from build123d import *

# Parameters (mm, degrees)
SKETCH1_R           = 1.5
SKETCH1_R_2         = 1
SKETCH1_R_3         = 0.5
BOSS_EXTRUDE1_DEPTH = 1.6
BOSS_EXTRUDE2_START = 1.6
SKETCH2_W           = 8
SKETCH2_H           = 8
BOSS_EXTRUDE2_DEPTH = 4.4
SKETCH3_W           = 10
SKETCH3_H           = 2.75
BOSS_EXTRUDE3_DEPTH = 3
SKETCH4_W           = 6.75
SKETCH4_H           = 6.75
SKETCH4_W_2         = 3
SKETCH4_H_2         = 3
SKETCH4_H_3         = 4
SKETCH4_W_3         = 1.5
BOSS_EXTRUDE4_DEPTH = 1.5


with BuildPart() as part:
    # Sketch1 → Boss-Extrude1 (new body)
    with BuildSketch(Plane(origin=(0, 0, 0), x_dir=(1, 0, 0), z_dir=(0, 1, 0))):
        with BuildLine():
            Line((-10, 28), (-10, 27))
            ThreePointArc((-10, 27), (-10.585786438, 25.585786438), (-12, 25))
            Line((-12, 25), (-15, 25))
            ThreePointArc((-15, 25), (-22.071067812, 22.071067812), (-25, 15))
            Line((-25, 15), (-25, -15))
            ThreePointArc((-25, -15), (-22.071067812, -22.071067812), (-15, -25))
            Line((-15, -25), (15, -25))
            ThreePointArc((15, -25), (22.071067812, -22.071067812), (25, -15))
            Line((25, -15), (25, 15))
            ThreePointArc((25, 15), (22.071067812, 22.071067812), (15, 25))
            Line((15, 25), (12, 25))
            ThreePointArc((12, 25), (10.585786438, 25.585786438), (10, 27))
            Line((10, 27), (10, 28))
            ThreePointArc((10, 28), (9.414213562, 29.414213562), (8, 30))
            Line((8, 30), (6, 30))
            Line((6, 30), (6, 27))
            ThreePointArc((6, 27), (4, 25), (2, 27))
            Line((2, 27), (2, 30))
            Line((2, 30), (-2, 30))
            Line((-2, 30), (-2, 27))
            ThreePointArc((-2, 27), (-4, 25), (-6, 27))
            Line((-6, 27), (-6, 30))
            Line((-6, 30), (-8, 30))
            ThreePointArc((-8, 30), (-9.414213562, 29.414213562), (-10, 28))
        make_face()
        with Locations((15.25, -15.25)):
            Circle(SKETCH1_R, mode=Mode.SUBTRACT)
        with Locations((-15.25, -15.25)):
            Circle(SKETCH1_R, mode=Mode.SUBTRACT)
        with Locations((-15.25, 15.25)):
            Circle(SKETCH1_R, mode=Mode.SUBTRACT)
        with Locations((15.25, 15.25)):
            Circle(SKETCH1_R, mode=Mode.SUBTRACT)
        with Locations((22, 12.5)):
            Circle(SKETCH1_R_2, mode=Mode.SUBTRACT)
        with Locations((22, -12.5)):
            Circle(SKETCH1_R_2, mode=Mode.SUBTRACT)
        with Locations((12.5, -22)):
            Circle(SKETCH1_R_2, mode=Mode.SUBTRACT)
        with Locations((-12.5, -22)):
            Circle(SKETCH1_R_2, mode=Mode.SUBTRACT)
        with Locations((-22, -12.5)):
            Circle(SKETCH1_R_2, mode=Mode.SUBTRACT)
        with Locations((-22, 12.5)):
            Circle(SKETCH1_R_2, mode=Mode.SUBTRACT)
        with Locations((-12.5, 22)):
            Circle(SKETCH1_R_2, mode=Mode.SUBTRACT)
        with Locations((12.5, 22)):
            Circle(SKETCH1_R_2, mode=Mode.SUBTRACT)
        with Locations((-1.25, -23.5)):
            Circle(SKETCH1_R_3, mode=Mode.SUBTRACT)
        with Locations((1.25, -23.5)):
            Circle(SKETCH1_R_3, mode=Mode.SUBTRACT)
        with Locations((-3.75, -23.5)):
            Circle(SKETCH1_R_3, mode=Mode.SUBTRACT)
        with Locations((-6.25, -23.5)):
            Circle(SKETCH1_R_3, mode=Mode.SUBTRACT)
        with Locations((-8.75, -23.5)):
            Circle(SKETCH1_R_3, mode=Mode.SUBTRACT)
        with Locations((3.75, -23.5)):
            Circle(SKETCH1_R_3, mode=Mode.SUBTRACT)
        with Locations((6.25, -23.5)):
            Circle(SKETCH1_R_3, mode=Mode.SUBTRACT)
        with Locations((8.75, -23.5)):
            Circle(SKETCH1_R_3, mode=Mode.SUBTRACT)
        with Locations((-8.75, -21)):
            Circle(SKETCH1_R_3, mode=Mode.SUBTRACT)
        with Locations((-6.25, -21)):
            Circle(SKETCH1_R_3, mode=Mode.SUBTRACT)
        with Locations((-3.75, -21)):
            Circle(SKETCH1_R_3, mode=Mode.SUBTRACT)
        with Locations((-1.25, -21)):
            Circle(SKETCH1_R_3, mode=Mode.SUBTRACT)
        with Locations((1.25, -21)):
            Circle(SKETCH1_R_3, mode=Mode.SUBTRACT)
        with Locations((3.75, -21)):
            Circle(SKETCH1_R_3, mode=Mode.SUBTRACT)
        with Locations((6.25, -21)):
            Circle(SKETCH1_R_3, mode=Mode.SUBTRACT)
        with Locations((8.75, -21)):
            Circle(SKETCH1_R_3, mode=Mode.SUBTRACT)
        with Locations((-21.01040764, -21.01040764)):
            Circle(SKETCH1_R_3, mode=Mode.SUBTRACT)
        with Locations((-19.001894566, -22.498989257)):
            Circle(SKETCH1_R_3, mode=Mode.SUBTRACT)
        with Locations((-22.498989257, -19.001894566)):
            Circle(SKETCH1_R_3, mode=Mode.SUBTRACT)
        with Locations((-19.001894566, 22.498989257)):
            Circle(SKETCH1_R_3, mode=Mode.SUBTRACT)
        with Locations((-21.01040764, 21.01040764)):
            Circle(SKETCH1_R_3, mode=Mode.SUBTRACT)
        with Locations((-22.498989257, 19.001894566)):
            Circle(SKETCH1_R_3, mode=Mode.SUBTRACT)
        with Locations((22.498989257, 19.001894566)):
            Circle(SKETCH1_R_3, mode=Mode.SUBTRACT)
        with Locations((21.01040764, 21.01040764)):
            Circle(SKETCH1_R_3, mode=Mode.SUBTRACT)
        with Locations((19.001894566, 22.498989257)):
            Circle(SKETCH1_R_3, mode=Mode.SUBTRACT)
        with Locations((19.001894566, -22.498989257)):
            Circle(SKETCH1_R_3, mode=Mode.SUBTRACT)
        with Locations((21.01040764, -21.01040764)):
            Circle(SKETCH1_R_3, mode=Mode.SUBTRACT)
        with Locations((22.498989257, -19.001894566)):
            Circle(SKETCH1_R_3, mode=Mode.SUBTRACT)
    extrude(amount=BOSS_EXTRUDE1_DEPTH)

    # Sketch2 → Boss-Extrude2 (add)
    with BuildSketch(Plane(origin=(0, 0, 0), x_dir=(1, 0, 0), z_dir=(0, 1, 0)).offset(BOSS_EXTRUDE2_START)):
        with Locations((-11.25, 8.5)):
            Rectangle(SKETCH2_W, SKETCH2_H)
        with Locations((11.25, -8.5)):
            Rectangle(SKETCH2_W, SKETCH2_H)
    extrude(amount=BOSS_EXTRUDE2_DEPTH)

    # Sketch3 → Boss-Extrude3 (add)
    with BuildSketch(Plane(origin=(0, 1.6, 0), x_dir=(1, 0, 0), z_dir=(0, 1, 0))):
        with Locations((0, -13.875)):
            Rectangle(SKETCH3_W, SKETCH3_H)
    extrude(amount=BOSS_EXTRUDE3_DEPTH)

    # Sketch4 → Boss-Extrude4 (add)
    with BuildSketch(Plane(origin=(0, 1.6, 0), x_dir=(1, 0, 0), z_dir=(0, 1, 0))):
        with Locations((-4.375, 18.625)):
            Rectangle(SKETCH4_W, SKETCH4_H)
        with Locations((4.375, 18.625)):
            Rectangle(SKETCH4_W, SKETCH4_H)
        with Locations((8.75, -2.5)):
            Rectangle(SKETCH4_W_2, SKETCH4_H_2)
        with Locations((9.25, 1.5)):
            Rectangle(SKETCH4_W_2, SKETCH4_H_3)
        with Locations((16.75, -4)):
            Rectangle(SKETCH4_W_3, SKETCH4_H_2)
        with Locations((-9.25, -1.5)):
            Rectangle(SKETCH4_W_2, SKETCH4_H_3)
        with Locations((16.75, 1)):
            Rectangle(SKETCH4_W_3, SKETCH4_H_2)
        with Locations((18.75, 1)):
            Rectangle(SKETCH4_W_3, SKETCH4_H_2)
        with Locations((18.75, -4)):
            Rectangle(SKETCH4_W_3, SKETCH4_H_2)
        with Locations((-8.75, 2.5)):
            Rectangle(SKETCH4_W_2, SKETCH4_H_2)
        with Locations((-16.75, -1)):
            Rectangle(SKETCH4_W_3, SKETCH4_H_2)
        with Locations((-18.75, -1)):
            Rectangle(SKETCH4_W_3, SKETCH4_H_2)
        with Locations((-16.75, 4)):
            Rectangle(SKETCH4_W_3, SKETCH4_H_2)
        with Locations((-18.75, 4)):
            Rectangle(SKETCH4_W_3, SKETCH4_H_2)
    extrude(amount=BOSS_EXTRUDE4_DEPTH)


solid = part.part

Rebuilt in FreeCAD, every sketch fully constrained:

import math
import FreeCAD as App
import Part
import Sketcher
from FreeCAD import Vector
Q = App.Units.Quantity

doc = App.newDocument("Part")
body = doc.addObject("PartDesign::Body", "Body")

# Sketch on XZ plane
sketch1 = body.newObject("Sketcher::SketchObject", "Sketch")
sketch1.AttachmentSupport = (doc.getObject("XZ_Plane"), [""])
sketch1.MapMode = "FlatFace"
sketch1.addGeometry(Part.LineSegment(Vector(-10, -28, 0), Vector(-10, -27, 0)), False)
sketch1.addGeometry(Part.ArcOfCircle(Part.Circle(Vector(-12, -27, 0), Vector(0, 0, 1), 2), math.radians(0), math.radians(90)), False)
sketch1.addGeometry(Part.LineSegment(Vector(-12, -25, 0), Vector(-15, -25, 0)), False)
sketch1.addGeometry(Part.ArcOfCircle(Part.Circle(Vector(-15, -15, 0), Vector(0, 0, 1), 10), math.radians(180), math.radians(270)), False)
sketch1.addGeometry(Part.LineSegment(Vector(-25, -15, 0), Vector(-25, 15, 0)), False)
sketch1.addGeometry(Part.ArcOfCircle(Part.Circle(Vector(-15, 15, 0), Vector(0, 0, 1), 10), math.radians(90), math.radians(180)), False)
sketch1.addGeometry(Part.LineSegment(Vector(-15, 25, 0), Vector(15, 25, 0)), False)
sketch1.addGeometry(Part.ArcOfCircle(Part.Circle(Vector(15, 15, 0), Vector(0, 0, 1), 10), math.radians(0), math.radians(90)), False)
sketch1.addGeometry(Part.LineSegment(Vector(25, 15, 0), Vector(25, -15, 0)), False)
sketch1.addGeometry(Part.ArcOfCircle(Part.Circle(Vector(15, -15, 0), Vector(0, 0, 1), 10), math.radians(-90), math.radians(0)), False)
sketch1.addGeometry(Part.LineSegment(Vector(15, -25, 0), Vector(12, -25, 0)), False)
sketch1.addGeometry(Part.ArcOfCircle(Part.Circle(Vector(12, -27, 0), Vector(0, 0, 1), 2), math.radians(90), math.radians(180)), False)
sketch1.addGeometry(Part.LineSegment(Vector(10, -27, 0), Vector(10, -28, 0)), False)
sketch1.addGeometry(Part.ArcOfCircle(Part.Circle(Vector(8, -28, 0), Vector(0, 0, 1), 2), math.radians(-90), math.radians(0)), False)
sketch1.addGeometry(Part.LineSegment(Vector(8, -30, 0), Vector(6, -30, 0)), False)
sketch1.addGeometry(Part.LineSegment(Vector(6, -30, 0), Vector(6, -27, 0)), False)
sketch1.addGeometry(Part.ArcOfCircle(Part.Circle(Vector(4, -27, 0), Vector(0, 0, 1), 2), math.radians(0), math.radians(180)), False)
sketch1.addGeometry(Part.LineSegment(Vector(2, -27, 0), Vector(2, -30, 0)), False)
sketch1.addGeometry(Part.LineSegment(Vector(2, -30, 0), Vector(-2, -30, 0)), False)
sketch1.addGeometry(Part.LineSegment(Vector(-2, -30, 0), Vector(-2, -27, 0)), False)
sketch1.addGeometry(Part.ArcOfCircle(Part.Circle(Vector(-4, -27, 0), Vector(0, 0, 1), 2), math.radians(0), math.radians(180)), False)
sketch1.addGeometry(Part.LineSegment(Vector(-6, -27, 0), Vector(-6, -30, 0)), False)
sketch1.addGeometry(Part.LineSegment(Vector(-6, -30, 0), Vector(-8, -30, 0)), False)
sketch1.addGeometry(Part.ArcOfCircle(Part.Circle(Vector(-8, -28, 0), Vector(0, 0, 1), 2), math.radians(-180), math.radians(-90)), False)
sketch1.addGeometry(Part.Circle(Vector(-19.001895, 22.498989, 0), Vector(0, 0, 1), 0.5), False)
sketch1.addGeometry(Part.Circle(Vector(-21.010408, 21.010408, 0), Vector(0, 0, 1), 0.5), False)
sketch1.addGeometry(Part.Circle(Vector(-22.498989, 19.001895, 0), Vector(0, 0, 1), 0.5), False)
sketch1.addGeometry(Part.Circle(Vector(-12.5, 22, 0), Vector(0, 0, 1), 1), False)
sketch1.addGeometry(Part.Circle(Vector(-22, 12.5, 0), Vector(0, 0, 1), 1), False)
sketch1.addGeometry(Part.Circle(Vector(-15.25, 15.25, 0), Vector(0, 0, 1), 1.5), False)
sketch1.addGeometry(Part.Circle(Vector(-8.75, 23.5, 0), Vector(0, 0, 1), 0.5), False)
sketch1.addGeometry(Part.Circle(Vector(-6.25, 23.5, 0), Vector(0, 0, 1), 0.5), False)
sketch1.addGeometry(Part.Circle(Vector(-8.75, 21, 0), Vector(0, 0, 1), 0.5), False)
sketch1.addGeometry(Part.Circle(Vector(-6.25, 21, 0), Vector(0, 0, 1), 0.5), False)
sketch1.addGeometry(Part.Circle(Vector(-3.75, 23.5, 0), Vector(0, 0, 1), 0.5), False)
sketch1.addGeometry(Part.Circle(Vector(-1.25, 23.5, 0), Vector(0, 0, 1), 0.5), False)
sketch1.addGeometry(Part.Circle(Vector(-3.75, 21, 0), Vector(0, 0, 1), 0.5), False)
sketch1.addGeometry(Part.Circle(Vector(-1.25, 21, 0), Vector(0, 0, 1), 0.5), False)
sketch1.addGeometry(Part.Circle(Vector(1.25, 23.5, 0), Vector(0, 0, 1), 0.5), False)
sketch1.addGeometry(Part.Circle(Vector(3.75, 23.5, 0), Vector(0, 0, 1), 0.5), False)
sketch1.addGeometry(Part.Circle(Vector(1.25, 21, 0), Vector(0, 0, 1), 0.5), False)
sketch1.addGeometry(Part.Circle(Vector(3.75, 21, 0), Vector(0, 0, 1), 0.5), False)
sketch1.addGeometry(Part.Circle(Vector(6.25, 23.5, 0), Vector(0, 0, 1), 0.5), False)
sketch1.addGeometry(Part.Circle(Vector(8.75, 23.5, 0), Vector(0, 0, 1), 0.5), False)
sketch1.addGeometry(Part.Circle(Vector(6.25, 21, 0), Vector(0, 0, 1), 0.5), False)
sketch1.addGeometry(Part.Circle(Vector(8.75, 21, 0), Vector(0, 0, 1), 0.5), False)
sketch1.addGeometry(Part.Circle(Vector(12.5, 22, 0), Vector(0, 0, 1), 1), False)
sketch1.addGeometry(Part.Circle(Vector(19.001895, 22.498989, 0), Vector(0, 0, 1), 0.5), False)
sketch1.addGeometry(Part.Circle(Vector(21.010408, 21.010408, 0), Vector(0, 0, 1), 0.5), False)
sketch1.addGeometry(Part.Circle(Vector(22.498989, 19.001895, 0), Vector(0, 0, 1), 0.5), False)
sketch1.addGeometry(Part.Circle(Vector(15.25, 15.25, 0), Vector(0, 0, 1), 1.5), False)
sketch1.addGeometry(Part.Circle(Vector(22, 12.5, 0), Vector(0, 0, 1), 1), False)
sketch1.addGeometry(Part.Circle(Vector(-22, -12.5, 0), Vector(0, 0, 1), 1), False)
sketch1.addGeometry(Part.Circle(Vector(-15.25, -15.25, 0), Vector(0, 0, 1), 1.5), False)
sketch1.addGeometry(Part.Circle(Vector(-22.498989, -19.001895, 0), Vector(0, 0, 1), 0.5), False)
sketch1.addGeometry(Part.Circle(Vector(-21.010408, -21.010408, 0), Vector(0, 0, 1), 0.5), False)
sketch1.addGeometry(Part.Circle(Vector(-19.001895, -22.498989, 0), Vector(0, 0, 1), 0.5), False)
sketch1.addGeometry(Part.Circle(Vector(-12.5, -22, 0), Vector(0, 0, 1), 1), False)
sketch1.addGeometry(Part.Circle(Vector(15.25, -15.25, 0), Vector(0, 0, 1), 1.5), False)
sketch1.addGeometry(Part.Circle(Vector(22, -12.5, 0), Vector(0, 0, 1), 1), False)
sketch1.addGeometry(Part.Circle(Vector(12.5, -22, 0), Vector(0, 0, 1), 1), False)
sketch1.addGeometry(Part.Circle(Vector(22.498989, -19.001895, 0), Vector(0, 0, 1), 0.5), False)
sketch1.addGeometry(Part.Circle(Vector(19.001895, -22.498989, 0), Vector(0, 0, 1), 0.5), False)
sketch1.addGeometry(Part.Circle(Vector(21.010408, -21.010408, 0), Vector(0, 0, 1), 0.5), False)
sketch1.addConstraint(Sketcher.Constraint("Tangent", 0, 2, 1, 1))
sketch1.addConstraint(Sketcher.Constraint("Tangent", 1, 2, 2, 1))
sketch1.addConstraint(Sketcher.Constraint("Tangent", 2, 2, 3, 2))
sketch1.addConstraint(Sketcher.Constraint("Tangent", 3, 1, 4, 1))
sketch1.addConstraint(Sketcher.Constraint("Tangent", 4, 2, 5, 2))
sketch1.addConstraint(Sketcher.Constraint("Tangent", 5, 1, 6, 1))
sketch1.addConstraint(Sketcher.Constraint("Tangent", 6, 2, 7, 2))
sketch1.addConstraint(Sketcher.Constraint("Tangent", 7, 1, 8, 1))
sketch1.addConstraint(Sketcher.Constraint("Tangent", 8, 2, 9, 2))
sketch1.addConstraint(Sketcher.Constraint("Tangent", 9, 1, 10, 1))
sketch1.addConstraint(Sketcher.Constraint("Tangent", 10, 2, 11, 1))
sketch1.addConstraint(Sketcher.Constraint("Tangent", 11, 2, 12, 1))
sketch1.addConstraint(Sketcher.Constraint("Tangent", 12, 2, 13, 2))
sketch1.addConstraint(Sketcher.Constraint("Tangent", 13, 1, 14, 1))
sketch1.addConstraint(Sketcher.Constraint("Coincident", 14, 2, 15, 1))
sketch1.addConstraint(Sketcher.Constraint("Tangent", 15, 2, 16, 1))
sketch1.addConstraint(Sketcher.Constraint("Tangent", 16, 2, 17, 1))
sketch1.addConstraint(Sketcher.Constraint("Coincident", 17, 2, 18, 1))
sketch1.addConstraint(Sketcher.Constraint("Coincident", 18, 2, 19, 1))
sketch1.addConstraint(Sketcher.Constraint("Tangent", 19, 2, 20, 1))
sketch1.addConstraint(Sketcher.Constraint("Tangent", 20, 2, 21, 1))
sketch1.addConstraint(Sketcher.Constraint("Coincident", 21, 2, 22, 1))
sketch1.addConstraint(Sketcher.Constraint("Tangent", 22, 2, 23, 2))
sketch1.addConstraint(Sketcher.Constraint("Tangent", 23, 1, 0, 1))
sketch1.addConstraint(Sketcher.Constraint("Vertical", 0))
sketch1.addConstraint(Sketcher.Constraint("Horizontal", 2))
sketch1.addConstraint(Sketcher.Constraint("Vertical", 4))
sketch1.addConstraint(Sketcher.Constraint("Horizontal", 6))
sketch1.addConstraint(Sketcher.Constraint("Vertical", 8))
sketch1.addConstraint(Sketcher.Constraint("Horizontal", 10))
sketch1.addConstraint(Sketcher.Constraint("Vertical", 12))
sketch1.addConstraint(Sketcher.Constraint("Horizontal", 14))
sketch1.addConstraint(Sketcher.Constraint("Vertical", 15))
sketch1.addConstraint(Sketcher.Constraint("Vertical", 17))
sketch1.addConstraint(Sketcher.Constraint("Horizontal", 18))
sketch1.addConstraint(Sketcher.Constraint("Vertical", 19))
sketch1.addConstraint(Sketcher.Constraint("Vertical", 21))
sketch1.addConstraint(Sketcher.Constraint("Horizontal", 22))
sketch1.addConstraint(Sketcher.Constraint("Equal", 3, 5))
sketch1.addConstraint(Sketcher.Constraint("Equal", 5, 7))
sketch1.addConstraint(Sketcher.Constraint("Equal", 7, 9))
sketch1.addConstraint(Sketcher.Constraint("Equal", 1, 11))
sketch1.addConstraint(Sketcher.Constraint("Equal", 11, 13))
sketch1.addConstraint(Sketcher.Constraint("Equal", 13, 16))
sketch1.addConstraint(Sketcher.Constraint("Equal", 16, 20))
sketch1.addConstraint(Sketcher.Constraint("Equal", 20, 23))
sketch1.addConstraint(Sketcher.Constraint("Equal", 24, 25))
sketch1.addConstraint(Sketcher.Constraint("Equal", 25, 26))
sketch1.addConstraint(Sketcher.Constraint("Equal", 27, 28))
sketch1.addConstraint(Sketcher.Constraint("Equal", 26, 30))
sketch1.addConstraint(Sketcher.Constraint("Equal", 30, 31))
sketch1.addConstraint(Sketcher.Constraint("Equal", 31, 32))
sketch1.addConstraint(Sketcher.Constraint("Equal", 32, 33))
sketch1.addConstraint(Sketcher.Constraint("Equal", 33, 34))
sketch1.addConstraint(Sketcher.Constraint("Equal", 34, 35))
sketch1.addConstraint(Sketcher.Constraint("Equal", 35, 36))
sketch1.addConstraint(Sketcher.Constraint("Equal", 36, 37))
sketch1.addConstraint(Sketcher.Constraint("Equal", 37, 38))
sketch1.addConstraint(Sketcher.Constraint("Equal", 38, 39))
sketch1.addConstraint(Sketcher.Constraint("Equal", 39, 40))
sketch1.addConstraint(Sketcher.Constraint("Equal", 40, 41))
sketch1.addConstraint(Sketcher.Constraint("Equal", 41, 42))
sketch1.addConstraint(Sketcher.Constraint("Equal", 42, 43))
sketch1.addConstraint(Sketcher.Constraint("Equal", 43, 44))
sketch1.addConstraint(Sketcher.Constraint("Equal", 44, 45))
sketch1.addConstraint(Sketcher.Constraint("Equal", 28, 46))
sketch1.addConstraint(Sketcher.Constraint("Equal", 45, 47))
sketch1.addConstraint(Sketcher.Constraint("Equal", 47, 48))
sketch1.addConstraint(Sketcher.Constraint("Equal", 48, 49))
sketch1.addConstraint(Sketcher.Constraint("Equal", 29, 50))
sketch1.addConstraint(Sketcher.Constraint("Equal", 46, 51))
sketch1.addConstraint(Sketcher.Constraint("Equal", 51, 52))
sketch1.addConstraint(Sketcher.Constraint("Equal", 50, 53))
sketch1.addConstraint(Sketcher.Constraint("Equal", 49, 54))
sketch1.addConstraint(Sketcher.Constraint("Equal", 54, 55))
sketch1.addConstraint(Sketcher.Constraint("Equal", 55, 56))
sketch1.addConstraint(Sketcher.Constraint("Equal", 52, 57))
sketch1.addConstraint(Sketcher.Constraint("Equal", 53, 58))
sketch1.addConstraint(Sketcher.Constraint("Equal", 57, 59))
sketch1.addConstraint(Sketcher.Constraint("Equal", 59, 60))
sketch1.addConstraint(Sketcher.Constraint("Equal", 56, 61))
sketch1.addConstraint(Sketcher.Constraint("Equal", 61, 62))
sketch1.addConstraint(Sketcher.Constraint("Equal", 62, 63))
sketch1.addConstraint(Sketcher.Constraint("Symmetric", 3, 3, 7, 3, -1, 1))
sketch1.addConstraint(Sketcher.Constraint("Symmetric", 51, 3, 52, 3, -1, 1))
sketch1.addConstraint(Sketcher.Constraint("Symmetric", 50, 3, 53, 3, -1, 1))
sketch1.addConstraint(Sketcher.Constraint("Symmetric", 49, 3, 54, 3, -1, 1))
sketch1.addConstraint(Sketcher.Constraint("Symmetric", 48, 3, 55, 3, -1, 1))
sketch1.addConstraint(Sketcher.Constraint("Symmetric", 47, 3, 56, 3, -1, 1))
sketch1.addConstraint(Sketcher.Constraint("Symmetric", 46, 3, 57, 3, -1, 1))
sketch1.addConstraint(Sketcher.Constraint("Symmetric", 29, 3, 58, 3, -1, 1))
sketch1.addConstraint(Sketcher.Constraint("Symmetric", 28, 3, 59, 3, -1, 1))
sketch1.addConstraint(Sketcher.Constraint("Symmetric", 27, 3, 60, 3, -1, 1))
sketch1.addConstraint(Sketcher.Constraint("Symmetric", 26, 3, 61, 3, -1, 1))
sketch1.addConstraint(Sketcher.Constraint("Symmetric", 24, 3, 62, 3, -1, 1))
sketch1.addConstraint(Sketcher.Constraint("Symmetric", 25, 3, 63, 3, -1, 1))
sketch1.addConstraint(Sketcher.Constraint("Symmetric", 1, 3, 11, 3, -2))
sketch1.addConstraint(Sketcher.Constraint("Symmetric", 16, 3, 20, 3, -2))
sketch1.addConstraint(Sketcher.Constraint("Symmetric", 35, 3, 38, 3, -2))
sketch1.addConstraint(Sketcher.Constraint("Symmetric", 34, 3, 39, 3, -2))
sketch1.addConstraint(Sketcher.Constraint("Symmetric", 37, 3, 40, 3, -2))
sketch1.addConstraint(Sketcher.Constraint("Symmetric", 36, 3, 41, 3, -2))
sketch1.addConstraint(Sketcher.Constraint("Symmetric", 31, 3, 42, 3, -2))
sketch1.addConstraint(Sketcher.Constraint("Symmetric", 30, 3, 43, 3, -2))
sketch1.addConstraint(Sketcher.Constraint("Symmetric", 33, 3, 44, 3, -2))
sketch1.addConstraint(Sketcher.Constraint("Symmetric", 32, 3, 45, 3, -2))
sketch1.addConstraint(Sketcher.Constraint("Symmetric", 27, 3, 46, 3, -2))
sketch1.addConstraint(Sketcher.Constraint("Symmetric", 24, 3, 47, 3, -2))
sketch1.addConstraint(Sketcher.Constraint("Symmetric", 25, 3, 48, 3, -2))
sketch1.addConstraint(Sketcher.Constraint("Symmetric", 26, 3, 49, 3, -2))
sketch1.addConstraint(Sketcher.Constraint("Symmetric", 29, 3, 50, 3, -2))
sketch1.addConstraint(Sketcher.Constraint("Symmetric", 28, 3, 51, 3, -2))
sketch1.addConstraint(Sketcher.Constraint("Horizontal", 11, 3, 16, 3))
sketch1.addConstraint(Sketcher.Constraint("Horizontal", 13, 3, 23, 3))
sketch1.addConstraint(Sketcher.Constraint("Horizontal", 30, 3, 31, 3))
sketch1.addConstraint(Sketcher.Constraint("Horizontal", 32, 3, 33, 3))
sketch1.addConstraint(Sketcher.Constraint("Horizontal", 31, 3, 34, 3))
sketch1.addConstraint(Sketcher.Constraint("Horizontal", 34, 3, 35, 3))
sketch1.addConstraint(Sketcher.Constraint("Horizontal", 33, 3, 36, 3))
sketch1.addConstraint(Sketcher.Constraint("Horizontal", 36, 3, 37, 3))
sketch1.addConstraint(Sketcher.Constraint("Horizontal", 14, 2, 17, 2))
sketch1.addConstraint(Sketcher.Constraint("Vertical", 30, 3, 32, 3))
sketch1.addConstraint(Sketcher.Constraint("Vertical", 31, 3, 33, 3))
sketch1.addConstraint(Sketcher.Constraint("Vertical", 34, 3, 36, 3))
sketch1.addConstraint(Sketcher.Constraint("Vertical", 35, 3, 37, 3))
sketch1.addConstraint(Sketcher.Constraint("Equal", 6, 4))
sketch1.addConstraint(Sketcher.Constraint("Equal", 10, 15))
sketch1.addConstraint(Sketcher.Constraint("Diameter", 24, Q("1 mm")))
sketch1.addConstraint(Sketcher.Constraint("Diameter", 27, Q("2 mm")))
sketch1.addConstraint(Sketcher.Constraint("Diameter", 29, Q("3 mm")))
sketch1.addConstraint(Sketcher.Constraint("Radius", 1, Q("2 mm")))
sketch1.addConstraint(Sketcher.Constraint("Radius", 3, Q("10 mm")))
sketch1.addConstraint(Sketcher.Constraint("DistanceX", 2, 2, 2, 1, Q("3 mm")))
sketch1.addConstraint(Sketcher.Constraint("DistanceX", 6, 1, 6, 2, Q("30 mm")))
sketch1.addConstraint(Sketcher.Constraint("DistanceX", 14, 2, 14, 1, Q("2 mm")))
sketch1.addConstraint(Sketcher.Constraint("DistanceY", -1, 1, 27, 3, Q("22 mm")))
sketch1.addConstraint(Sketcher.Constraint("DistanceX", 28, 3, -1, 1, Q("22 mm")))
sketch1.addConstraint(Sketcher.Constraint("DistanceY", -1, 1, 32, 3, Q("21 mm")))
sketch1.addConstraint(Sketcher.Constraint("DistanceX", 27, 3, -1, 1, Q("12.5 mm")))
sketch1.addConstraint(Sketcher.Constraint("DistanceY", -1, 1, 28, 3, Q("12.5 mm")))
sketch1.addConstraint(Sketcher.Constraint("DistanceY", -1, 1, 30, 3, Q("23.5 mm")))
sketch1.addConstraint(Sketcher.Constraint("DistanceX", 29, 3, -1, 1, Q("15.25 mm")))
sketch1.addConstraint(Sketcher.Constraint("DistanceY", -1, 1, 29, 3, Q("15.25 mm")))
sketch1.addConstraint(Sketcher.Constraint("DistanceX", 30, 3, -1, 1, Q("8.75 mm")))
sketch1.addConstraint(Sketcher.Constraint("DistanceX", 31, 3, -1, 1, Q("6.25 mm")))
sketch1.addConstraint(Sketcher.Constraint("DistanceX", 34, 3, -1, 1, Q("3.75 mm")))
sketch1.addConstraint(Sketcher.Constraint("DistanceX", 35, 3, -1, 1, Q("1.25 mm")))
sketch1.addConstraint(Sketcher.Constraint("DistanceY", -1, 1, 24, 3, Q("22.498989 mm")))
sketch1.addConstraint(Sketcher.Constraint("DistanceX", 26, 3, -1, 1, Q("22.498989 mm")))
sketch1.addConstraint(Sketcher.Constraint("DistanceX", 24, 3, -1, 1, Q("19.001895 mm")))
sketch1.addConstraint(Sketcher.Constraint("DistanceX", 25, 3, -1, 1, Q("21.010408 mm")))
sketch1.addConstraint(Sketcher.Constraint("DistanceY", -1, 1, 25, 3, Q("21.010408 mm")))
sketch1.addConstraint(Sketcher.Constraint("DistanceY", -1, 1, 26, 3, Q("19.001895 mm")))
pad1 = body.newObject("PartDesign::Pad", "Pad")
pad1.Profile = sketch1
pad1.Length = 1.6
pad1.Reversed = True

# Sketch on XZ plane
sketch2 = body.newObject("Sketcher::SketchObject", "Sketch001")
sketch2.AttachmentSupport = (doc.getObject("XZ_Plane"), [""])
sketch2.MapMode = "FlatFace"
sketch2.AttachmentOffset = App.Placement(Vector(0, 0, -1.6), App.Rotation())
sketch2.addGeometry(Part.LineSegment(Vector(-15.25, -12.5, 0), Vector(-15.25, -4.5, 0)), False)
sketch2.addGeometry(Part.LineSegment(Vector(-15.25, -4.5, 0), Vector(-7.25, -4.5, 0)), False)
sketch2.addGeometry(Part.LineSegment(Vector(-7.25, -4.5, 0), Vector(-7.25, -12.5, 0)), False)
sketch2.addGeometry(Part.LineSegment(Vector(-7.25, -12.5, 0), Vector(-15.25, -12.5, 0)), False)
sketch2.addGeometry(Part.LineSegment(Vector(7.25, 4.5, 0), Vector(7.25, 12.5, 0)), False)
sketch2.addGeometry(Part.LineSegment(Vector(7.25, 12.5, 0), Vector(15.25, 12.5, 0)), False)
sketch2.addGeometry(Part.LineSegment(Vector(15.25, 12.5, 0), Vector(15.25, 4.5, 0)), False)
sketch2.addGeometry(Part.LineSegment(Vector(15.25, 4.5, 0), Vector(7.25, 4.5, 0)), False)
sketch2.addConstraint(Sketcher.Constraint("Coincident", 0, 2, 1, 1))
sketch2.addConstraint(Sketcher.Constraint("Coincident", 1, 2, 2, 1))
sketch2.addConstraint(Sketcher.Constraint("Coincident", 2, 2, 3, 1))
sketch2.addConstraint(Sketcher.Constraint("Coincident", 3, 2, 0, 1))
sketch2.addConstraint(Sketcher.Constraint("Coincident", 4, 2, 5, 1))
sketch2.addConstraint(Sketcher.Constraint("Coincident", 5, 2, 6, 1))
sketch2.addConstraint(Sketcher.Constraint("Coincident", 6, 2, 7, 1))
sketch2.addConstraint(Sketcher.Constraint("Coincident", 7, 2, 4, 1))
sketch2.addConstraint(Sketcher.Constraint("Vertical", 0))
sketch2.addConstraint(Sketcher.Constraint("Horizontal", 1))
sketch2.addConstraint(Sketcher.Constraint("Vertical", 2))
sketch2.addConstraint(Sketcher.Constraint("Horizontal", 3))
sketch2.addConstraint(Sketcher.Constraint("Vertical", 4))
sketch2.addConstraint(Sketcher.Constraint("Horizontal", 5))
sketch2.addConstraint(Sketcher.Constraint("Vertical", 6))
sketch2.addConstraint(Sketcher.Constraint("Horizontal", 7))
sketch2.addConstraint(Sketcher.Constraint("Symmetric", 2, 2, 4, 2, -1, 1))
sketch2.addConstraint(Sketcher.Constraint("Symmetric", 0, 2, 6, 2, -1, 1))
sketch2.addConstraint(Sketcher.Constraint("Equal", 7, 0))
sketch2.addConstraint(Sketcher.Constraint("DistanceX", 1, 1, 1, 2, Q("8 mm")))
sketch2.addConstraint(Sketcher.Constraint("DistanceY", 1, 2, 4, 2, Q("17 mm")))
sketch2.addConstraint(Sketcher.Constraint("DistanceX", 1, 2, 4, 2, Q("14.5 mm")))
pad2 = body.newObject("PartDesign::Pad", "Pad001")
pad2.Profile = sketch2
pad2.Length = 4.4
pad2.Reversed = True

# Sketch on XZ plane
sketch3 = body.newObject("Sketcher::SketchObject", "Sketch002")
sketch3.AttachmentSupport = (doc.getObject("XZ_Plane"), [""])
sketch3.MapMode = "FlatFace"
sketch3.AttachmentOffset = App.Placement(Vector(0, 0, -1.6), App.Rotation())
sketch3.addGeometry(Part.LineSegment(Vector(-5, 12.5, 0), Vector(-5, 15.25, 0)), False)
sketch3.addGeometry(Part.LineSegment(Vector(-5, 15.25, 0), Vector(5, 15.25, 0)), False)
sketch3.addGeometry(Part.LineSegment(Vector(5, 15.25, 0), Vector(5, 12.5, 0)), False)
sketch3.addGeometry(Part.LineSegment(Vector(5, 12.5, 0), Vector(-5, 12.5, 0)), False)
sketch3.addConstraint(Sketcher.Constraint("Coincident", 0, 2, 1, 1))
sketch3.addConstraint(Sketcher.Constraint("Coincident", 1, 2, 2, 1))
sketch3.addConstraint(Sketcher.Constraint("Coincident", 2, 2, 3, 1))
sketch3.addConstraint(Sketcher.Constraint("Coincident", 3, 2, 0, 1))
sketch3.addConstraint(Sketcher.Constraint("Vertical", 0))
sketch3.addConstraint(Sketcher.Constraint("Horizontal", 1))
sketch3.addConstraint(Sketcher.Constraint("Vertical", 2))
sketch3.addConstraint(Sketcher.Constraint("Horizontal", 3))
sketch3.addConstraint(Sketcher.Constraint("DistanceX", 1, 1, 1, 2, Q("10 mm")))
sketch3.addConstraint(Sketcher.Constraint("DistanceX", 0, 2, -1, 1, Q("5 mm")))
sketch3.addConstraint(Sketcher.Constraint("DistanceY", 0, 1, 0, 2, Q("2.75 mm")))
sketch3.addConstraint(Sketcher.Constraint("DistanceY", -1, 1, 2, 2, Q("12.5 mm")))
pad3 = body.newObject("PartDesign::Pad", "Pad002")
pad3.Profile = sketch3
pad3.Length = 3
pad3.Reversed = True

# Sketch on XZ plane
sketch4 = body.newObject("Sketcher::SketchObject", "Sketch003")
sketch4.AttachmentSupport = (doc.getObject("XZ_Plane"), [""])
sketch4.MapMode = "FlatFace"
sketch4.AttachmentOffset = App.Placement(Vector(0, 0, -1.6), App.Rotation())
sketch4.addGeometry(Part.LineSegment(Vector(-7.75, -22, 0), Vector(-7.75, -15.25, 0)), False)
sketch4.addGeometry(Part.LineSegment(Vector(-7.75, -15.25, 0), Vector(-1, -15.25, 0)), False)
sketch4.addGeometry(Part.LineSegment(Vector(-1, -15.25, 0), Vector(-1, -22, 0)), False)
sketch4.addGeometry(Part.LineSegment(Vector(-1, -22, 0), Vector(-7.75, -22, 0)), False)
sketch4.addGeometry(Part.LineSegment(Vector(1, -22, 0), Vector(1, -15.25, 0)), False)
sketch4.addGeometry(Part.LineSegment(Vector(1, -15.25, 0), Vector(7.75, -15.25, 0)), False)
sketch4.addGeometry(Part.LineSegment(Vector(7.75, -15.25, 0), Vector(7.75, -22, 0)), False)
sketch4.addGeometry(Part.LineSegment(Vector(7.75, -22, 0), Vector(1, -22, 0)), False)
sketch4.addGeometry(Part.LineSegment(Vector(7.25, 1, 0), Vector(7.25, 4, 0)), False)
sketch4.addGeometry(Part.LineSegment(Vector(7.25, 4, 0), Vector(10.25, 4, 0)), False)
sketch4.addGeometry(Part.LineSegment(Vector(10.25, 4, 0), Vector(10.25, 1, 0)), False)
sketch4.addGeometry(Part.LineSegment(Vector(10.25, 1, 0), Vector(7.25, 1, 0)), False)
sketch4.addGeometry(Part.LineSegment(Vector(7.75, -3.5, 0), Vector(7.75, 0.5, 0)), False)
sketch4.addGeometry(Part.LineSegment(Vector(7.75, 0.5, 0), Vector(10.75, 0.5, 0)), False)
sketch4.addGeometry(Part.LineSegment(Vector(10.75, 0.5, 0), Vector(10.75, -3.5, 0)), False)
sketch4.addGeometry(Part.LineSegment(Vector(10.75, -3.5, 0), Vector(7.75, -3.5, 0)), False)
sketch4.addGeometry(Part.LineSegment(Vector(16, 2.5, 0), Vector(16, 5.5, 0)), False)
sketch4.addGeometry(Part.LineSegment(Vector(16, 5.5, 0), Vector(17.5, 5.5, 0)), False)
sketch4.addGeometry(Part.LineSegment(Vector(17.5, 5.5, 0), Vector(17.5, 2.5, 0)), False)
sketch4.addGeometry(Part.LineSegment(Vector(17.5, 2.5, 0), Vector(16, 2.5, 0)), False)
sketch4.addGeometry(Part.LineSegment(Vector(-10.75, -0.5, 0), Vector(-10.75, 3.5, 0)), False)
sketch4.addGeometry(Part.LineSegment(Vector(-10.75, 3.5, 0), Vector(-7.75, 3.5, 0)), False)
sketch4.addGeometry(Part.LineSegment(Vector(-7.75, 3.5, 0), Vector(-7.75, -0.5, 0)), False)
sketch4.addGeometry(Part.LineSegment(Vector(-7.75, -0.5, 0), Vector(-10.75, -0.5, 0)), False)
sketch4.addGeometry(Part.LineSegment(Vector(16, -2.5, 0), Vector(16, 0.5, 0)), False)
sketch4.addGeometry(Part.LineSegment(Vector(16, 0.5, 0), Vector(17.5, 0.5, 0)), False)
sketch4.addGeometry(Part.LineSegment(Vector(17.5, 0.5, 0), Vector(17.5, -2.5, 0)), False)
sketch4.addGeometry(Part.LineSegment(Vector(17.5, -2.5, 0), Vector(16, -2.5, 0)), False)
sketch4.addGeometry(Part.LineSegment(Vector(18, -2.5, 0), Vector(18, 0.5, 0)), False)
sketch4.addGeometry(Part.LineSegment(Vector(18, 0.5, 0), Vector(19.5, 0.5, 0)), False)
sketch4.addGeometry(Part.LineSegment(Vector(19.5, 0.5, 0), Vector(19.5, -2.5, 0)), False)
sketch4.addGeometry(Part.LineSegment(Vector(19.5, -2.5, 0), Vector(18, -2.5, 0)), False)
sketch4.addGeometry(Part.LineSegment(Vector(18, 2.5, 0), Vector(18, 5.5, 0)), False)
sketch4.addGeometry(Part.LineSegment(Vector(18, 5.5, 0), Vector(19.5, 5.5, 0)), False)
sketch4.addGeometry(Part.LineSegment(Vector(19.5, 5.5, 0), Vector(19.5, 2.5, 0)), False)
sketch4.addGeometry(Part.LineSegment(Vector(19.5, 2.5, 0), Vector(18, 2.5, 0)), False)
sketch4.addGeometry(Part.LineSegment(Vector(-10.25, -4, 0), Vector(-10.25, -1, 0)), False)
sketch4.addGeometry(Part.LineSegment(Vector(-10.25, -1, 0), Vector(-7.25, -1, 0)), False)
sketch4.addGeometry(Part.LineSegment(Vector(-7.25, -1, 0), Vector(-7.25, -4, 0)), False)
sketch4.addGeometry(Part.LineSegment(Vector(-7.25, -4, 0), Vector(-10.25, -4, 0)), False)
sketch4.addGeometry(Part.LineSegment(Vector(-17.5, -0.5, 0), Vector(-17.5, 2.5, 0)), False)
sketch4.addGeometry(Part.LineSegment(Vector(-17.5, 2.5, 0), Vector(-16, 2.5, 0)), False)
sketch4.addGeometry(Part.LineSegment(Vector(-16, 2.5, 0), Vector(-16, -0.5, 0)), False)
sketch4.addGeometry(Part.LineSegment(Vector(-16, -0.5, 0), Vector(-17.5, -0.5, 0)), False)
sketch4.addGeometry(Part.LineSegment(Vector(-19.5, -0.5, 0), Vector(-19.5, 2.5, 0)), False)
sketch4.addGeometry(Part.LineSegment(Vector(-19.5, 2.5, 0), Vector(-18, 2.5, 0)), False)
sketch4.addGeometry(Part.LineSegment(Vector(-18, 2.5, 0), Vector(-18, -0.5, 0)), False)
sketch4.addGeometry(Part.LineSegment(Vector(-18, -0.5, 0), Vector(-19.5, -0.5, 0)), False)
sketch4.addGeometry(Part.LineSegment(Vector(-17.5, -5.5, 0), Vector(-17.5, -2.5, 0)), False)
sketch4.addGeometry(Part.LineSegment(Vector(-17.5, -2.5, 0), Vector(-16, -2.5, 0)), False)
sketch4.addGeometry(Part.LineSegment(Vector(-16, -2.5, 0), Vector(-16, -5.5, 0)), False)
sketch4.addGeometry(Part.LineSegment(Vector(-16, -5.5, 0), Vector(-17.5, -5.5, 0)), False)
sketch4.addGeometry(Part.LineSegment(Vector(-19.5, -5.5, 0), Vector(-19.5, -2.5, 0)), False)
sketch4.addGeometry(Part.LineSegment(Vector(-19.5, -2.5, 0), Vector(-18, -2.5, 0)), False)
sketch4.addGeometry(Part.LineSegment(Vector(-18, -2.5, 0), Vector(-18, -5.5, 0)), False)
sketch4.addGeometry(Part.LineSegment(Vector(-18, -5.5, 0), Vector(-19.5, -5.5, 0)), False)
sketch4.addConstraint(Sketcher.Constraint("Coincident", 0, 2, 1, 1))
sketch4.addConstraint(Sketcher.Constraint("Coincident", 1, 2, 2, 1))
sketch4.addConstraint(Sketcher.Constraint("Coincident", 2, 2, 3, 1))
sketch4.addConstraint(Sketcher.Constraint("Coincident", 3, 2, 0, 1))
sketch4.addConstraint(Sketcher.Constraint("Coincident", 4, 2, 5, 1))
sketch4.addConstraint(Sketcher.Constraint("Coincident", 5, 2, 6, 1))
sketch4.addConstraint(Sketcher.Constraint("Coincident", 6, 2, 7, 1))
sketch4.addConstraint(Sketcher.Constraint("Coincident", 7, 2, 4, 1))
sketch4.addConstraint(Sketcher.Constraint("Coincident", 8, 2, 9, 1))
sketch4.addConstraint(Sketcher.Constraint("Coincident", 9, 2, 10, 1))
sketch4.addConstraint(Sketcher.Constraint("Coincident", 10, 2, 11, 1))
sketch4.addConstraint(Sketcher.Constraint("Coincident", 11, 2, 8, 1))
sketch4.addConstraint(Sketcher.Constraint("Coincident", 12, 2, 13, 1))
sketch4.addConstraint(Sketcher.Constraint("Coincident", 13, 2, 14, 1))
sketch4.addConstraint(Sketcher.Constraint("Coincident", 14, 2, 15, 1))
sketch4.addConstraint(Sketcher.Constraint("Coincident", 15, 2, 12, 1))
sketch4.addConstraint(Sketcher.Constraint("Coincident", 16, 2, 17, 1))
sketch4.addConstraint(Sketcher.Constraint("Coincident", 17, 2, 18, 1))
sketch4.addConstraint(Sketcher.Constraint("Coincident", 18, 2, 19, 1))
sketch4.addConstraint(Sketcher.Constraint("Coincident", 19, 2, 16, 1))
sketch4.addConstraint(Sketcher.Constraint("Coincident", 20, 2, 21, 1))
sketch4.addConstraint(Sketcher.Constraint("Coincident", 21, 2, 22, 1))
sketch4.addConstraint(Sketcher.Constraint("Coincident", 22, 2, 23, 1))
sketch4.addConstraint(Sketcher.Constraint("Coincident", 23, 2, 20, 1))
sketch4.addConstraint(Sketcher.Constraint("Coincident", 24, 2, 25, 1))
sketch4.addConstraint(Sketcher.Constraint("Coincident", 25, 2, 26, 1))
sketch4.addConstraint(Sketcher.Constraint("Coincident", 26, 2, 27, 1))
sketch4.addConstraint(Sketcher.Constraint("Coincident", 27, 2, 24, 1))
sketch4.addConstraint(Sketcher.Constraint("Coincident", 28, 2, 29, 1))
sketch4.addConstraint(Sketcher.Constraint("Coincident", 29, 2, 30, 1))
sketch4.addConstraint(Sketcher.Constraint("Coincident", 30, 2, 31, 1))
sketch4.addConstraint(Sketcher.Constraint("Coincident", 31, 2, 28, 1))
sketch4.addConstraint(Sketcher.Constraint("Coincident", 32, 2, 33, 1))
sketch4.addConstraint(Sketcher.Constraint("Coincident", 33, 2, 34, 1))
sketch4.addConstraint(Sketcher.Constraint("Coincident", 34, 2, 35, 1))
sketch4.addConstraint(Sketcher.Constraint("Coincident", 35, 2, 32, 1))
sketch4.addConstraint(Sketcher.Constraint("Coincident", 36, 2, 37, 1))
sketch4.addConstraint(Sketcher.Constraint("Coincident", 37, 2, 38, 1))
sketch4.addConstraint(Sketcher.Constraint("Coincident", 38, 2, 39, 1))
sketch4.addConstraint(Sketcher.Constraint("Coincident", 39, 2, 36, 1))
sketch4.addConstraint(Sketcher.Constraint("Coincident", 40, 2, 41, 1))
sketch4.addConstraint(Sketcher.Constraint("Coincident", 41, 2, 42, 1))
sketch4.addConstraint(Sketcher.Constraint("Coincident", 42, 2, 43, 1))
sketch4.addConstraint(Sketcher.Constraint("Coincident", 43, 2, 40, 1))
sketch4.addConstraint(Sketcher.Constraint("Coincident", 44, 2, 45, 1))
sketch4.addConstraint(Sketcher.Constraint("Coincident", 45, 2, 46, 1))
sketch4.addConstraint(Sketcher.Constraint("Coincident", 46, 2, 47, 1))
sketch4.addConstraint(Sketcher.Constraint("Coincident", 47, 2, 44, 1))
sketch4.addConstraint(Sketcher.Constraint("Coincident", 48, 2, 49, 1))
sketch4.addConstraint(Sketcher.Constraint("Coincident", 49, 2, 50, 1))
sketch4.addConstraint(Sketcher.Constraint("Coincident", 50, 2, 51, 1))
sketch4.addConstraint(Sketcher.Constraint("Coincident", 51, 2, 48, 1))
sketch4.addConstraint(Sketcher.Constraint("Coincident", 52, 2, 53, 1))
sketch4.addConstraint(Sketcher.Constraint("Coincident", 53, 2, 54, 1))
sketch4.addConstraint(Sketcher.Constraint("Coincident", 54, 2, 55, 1))
sketch4.addConstraint(Sketcher.Constraint("Coincident", 55, 2, 52, 1))
sketch4.addConstraint(Sketcher.Constraint("Vertical", 0))
sketch4.addConstraint(Sketcher.Constraint("Horizontal", 1))
sketch4.addConstraint(Sketcher.Constraint("Vertical", 2))
sketch4.addConstraint(Sketcher.Constraint("Horizontal", 3))
sketch4.addConstraint(Sketcher.Constraint("Vertical", 4))
sketch4.addConstraint(Sketcher.Constraint("Horizontal", 5))
sketch4.addConstraint(Sketcher.Constraint("Vertical", 6))
sketch4.addConstraint(Sketcher.Constraint("Horizontal", 7))
sketch4.addConstraint(Sketcher.Constraint("Vertical", 8))
sketch4.addConstraint(Sketcher.Constraint("Horizontal", 9))
sketch4.addConstraint(Sketcher.Constraint("Vertical", 10))
sketch4.addConstraint(Sketcher.Constraint("Horizontal", 11))
sketch4.addConstraint(Sketcher.Constraint("Vertical", 12))
sketch4.addConstraint(Sketcher.Constraint("Horizontal", 13))
sketch4.addConstraint(Sketcher.Constraint("Vertical", 14))
sketch4.addConstraint(Sketcher.Constraint("Horizontal", 15))
sketch4.addConstraint(Sketcher.Constraint("Vertical", 16))
sketch4.addConstraint(Sketcher.Constraint("Horizontal", 17))
sketch4.addConstraint(Sketcher.Constraint("Vertical", 18))
sketch4.addConstraint(Sketcher.Constraint("Horizontal", 19))
sketch4.addConstraint(Sketcher.Constraint("Vertical", 20))
sketch4.addConstraint(Sketcher.Constraint("Horizontal", 21))
sketch4.addConstraint(Sketcher.Constraint("Vertical", 22))
sketch4.addConstraint(Sketcher.Constraint("Horizontal", 23))
sketch4.addConstraint(Sketcher.Constraint("Vertical", 24))
sketch4.addConstraint(Sketcher.Constraint("Horizontal", 25))
sketch4.addConstraint(Sketcher.Constraint("Vertical", 26))
sketch4.addConstraint(Sketcher.Constraint("Horizontal", 27))
sketch4.addConstraint(Sketcher.Constraint("Vertical", 28))
sketch4.addConstraint(Sketcher.Constraint("Horizontal", 29))
sketch4.addConstraint(Sketcher.Constraint("Vertical", 30))
sketch4.addConstraint(Sketcher.Constraint("Horizontal", 31))
sketch4.addConstraint(Sketcher.Constraint("Vertical", 32))
sketch4.addConstraint(Sketcher.Constraint("Horizontal", 33))
sketch4.addConstraint(Sketcher.Constraint("Vertical", 34))
sketch4.addConstraint(Sketcher.Constraint("Horizontal", 35))
sketch4.addConstraint(Sketcher.Constraint("Vertical", 36))
sketch4.addConstraint(Sketcher.Constraint("Horizontal", 37))
sketch4.addConstraint(Sketcher.Constraint("Vertical", 38))
sketch4.addConstraint(Sketcher.Constraint("Horizontal", 39))
sketch4.addConstraint(Sketcher.Constraint("Vertical", 40))
sketch4.addConstraint(Sketcher.Constraint("Horizontal", 41))
sketch4.addConstraint(Sketcher.Constraint("Vertical", 42))
sketch4.addConstraint(Sketcher.Constraint("Horizontal", 43))
sketch4.addConstraint(Sketcher.Constraint("Vertical", 44))
sketch4.addConstraint(Sketcher.Constraint("Horizontal", 45))
sketch4.addConstraint(Sketcher.Constraint("Vertical", 46))
sketch4.addConstraint(Sketcher.Constraint("Horizontal", 47))
sketch4.addConstraint(Sketcher.Constraint("Vertical", 48))
sketch4.addConstraint(Sketcher.Constraint("Horizontal", 49))
sketch4.addConstraint(Sketcher.Constraint("Vertical", 50))
sketch4.addConstraint(Sketcher.Constraint("Horizontal", 51))
sketch4.addConstraint(Sketcher.Constraint("Vertical", 52))
sketch4.addConstraint(Sketcher.Constraint("Horizontal", 53))
sketch4.addConstraint(Sketcher.Constraint("Vertical", 54))
sketch4.addConstraint(Sketcher.Constraint("Horizontal", 55))
sketch4.addConstraint(Sketcher.Constraint("Symmetric", 14, 2, 20, 2, -1, 1))
sketch4.addConstraint(Sketcher.Constraint("Symmetric", 12, 2, 22, 2, -1, 1))
sketch4.addConstraint(Sketcher.Constraint("Symmetric", 10, 2, 36, 2, -1, 1))
sketch4.addConstraint(Sketcher.Constraint("Symmetric", 8, 2, 38, 2, -1, 1))
sketch4.addConstraint(Sketcher.Constraint("Symmetric", 26, 2, 40, 2, -1, 1))
sketch4.addConstraint(Sketcher.Constraint("Symmetric", 24, 2, 42, 2, -1, 1))
sketch4.addConstraint(Sketcher.Constraint("Symmetric", 30, 2, 44, 2, -1, 1))
sketch4.addConstraint(Sketcher.Constraint("Symmetric", 28, 2, 46, 2, -1, 1))
sketch4.addConstraint(Sketcher.Constraint("Symmetric", 18, 2, 48, 2, -1, 1))
sketch4.addConstraint(Sketcher.Constraint("Symmetric", 16, 2, 50, 2, -1, 1))
sketch4.addConstraint(Sketcher.Constraint("Symmetric", 34, 2, 52, 2, -1, 1))
sketch4.addConstraint(Sketcher.Constraint("Symmetric", 32, 2, 54, 2, -1, 1))
sketch4.addConstraint(Sketcher.Constraint("Symmetric", 1, 2, 4, 2, -2))
sketch4.addConstraint(Sketcher.Constraint("Symmetric", 3, 2, 6, 2, -2))
sketch4.addConstraint(Sketcher.Constraint("Symmetric", 18, 2, 40, 2, -2))
sketch4.addConstraint(Sketcher.Constraint("Symmetric", 34, 2, 44, 2, -2))
sketch4.addConstraint(Sketcher.Constraint("Horizontal", 13, 2, 24, 2))
sketch4.addConstraint(Sketcher.Constraint("Horizontal", 25, 2, 28, 2))
sketch4.addConstraint(Sketcher.Constraint("Horizontal", 27, 2, 30, 2))
sketch4.addConstraint(Sketcher.Constraint("Horizontal", 17, 2, 32, 2))
sketch4.addConstraint(Sketcher.Constraint("Vertical", 6, 2, 12, 2))
sketch4.addConstraint(Sketcher.Constraint("Vertical", 19, 2, 24, 2))
sketch4.addConstraint(Sketcher.Constraint("Vertical", 31, 2, 32, 2))
sketch4.addConstraint(Sketcher.Constraint("Equal", 11, 13))
sketch4.addConstraint(Sketcher.Constraint("Equal", 27, 29))
sketch4.addConstraint(Sketcher.Constraint("Equal", 7, 0))
sketch4.addConstraint(Sketcher.Constraint("Equal", 39, 8))
sketch4.addConstraint(Sketcher.Constraint("Equal", 10, 16))
sketch4.addConstraint(Sketcher.Constraint("Equal", 18, 24))
sketch4.addConstraint(Sketcher.Constraint("DistanceX", 9, 1, 9, 2, Q("3 mm")))
sketch4.addConstraint(Sketcher.Constraint("DistanceY", 12, 1, 12, 2, Q("4 mm")))
sketch4.addConstraint(Sketcher.Constraint("DistanceX", 17, 1, 17, 2, Q("1.5 mm")))
sketch4.addConstraint(Sketcher.Constraint("DistanceX", 1, 2, -1, 1, Q("1 mm")))
sketch4.addConstraint(Sketcher.Constraint("DistanceY", 2, 2, -1, 1, Q("22 mm")))
sketch4.addConstraint(Sketcher.Constraint("DistanceY", -1, 1, 8, 2, Q("4 mm")))
sketch4.addConstraint(Sketcher.Constraint("DistanceX", -1, 1, 16, 2, Q("16 mm")))
sketch4.addConstraint(Sketcher.Constraint("DistanceX", -1, 1, 28, 2, Q("18 mm")))
sketch4.addConstraint(Sketcher.Constraint("DistanceX", 0, 2, 8, 2, Q("15 mm")))
sketch4.addConstraint(Sketcher.Constraint("DistanceY", 13, 2, 16, 2, Q("5 mm")))
sketch4.addConstraint(Sketcher.Constraint("DistanceX", 1, 1, 1, 2, Q("6.75 mm")))
pad4 = body.newObject("PartDesign::Pad", "Pad003")
pad4.Profile = sketch4
pad4.Length = 1.5
pad4.Reversed = True

doc.recompute()
